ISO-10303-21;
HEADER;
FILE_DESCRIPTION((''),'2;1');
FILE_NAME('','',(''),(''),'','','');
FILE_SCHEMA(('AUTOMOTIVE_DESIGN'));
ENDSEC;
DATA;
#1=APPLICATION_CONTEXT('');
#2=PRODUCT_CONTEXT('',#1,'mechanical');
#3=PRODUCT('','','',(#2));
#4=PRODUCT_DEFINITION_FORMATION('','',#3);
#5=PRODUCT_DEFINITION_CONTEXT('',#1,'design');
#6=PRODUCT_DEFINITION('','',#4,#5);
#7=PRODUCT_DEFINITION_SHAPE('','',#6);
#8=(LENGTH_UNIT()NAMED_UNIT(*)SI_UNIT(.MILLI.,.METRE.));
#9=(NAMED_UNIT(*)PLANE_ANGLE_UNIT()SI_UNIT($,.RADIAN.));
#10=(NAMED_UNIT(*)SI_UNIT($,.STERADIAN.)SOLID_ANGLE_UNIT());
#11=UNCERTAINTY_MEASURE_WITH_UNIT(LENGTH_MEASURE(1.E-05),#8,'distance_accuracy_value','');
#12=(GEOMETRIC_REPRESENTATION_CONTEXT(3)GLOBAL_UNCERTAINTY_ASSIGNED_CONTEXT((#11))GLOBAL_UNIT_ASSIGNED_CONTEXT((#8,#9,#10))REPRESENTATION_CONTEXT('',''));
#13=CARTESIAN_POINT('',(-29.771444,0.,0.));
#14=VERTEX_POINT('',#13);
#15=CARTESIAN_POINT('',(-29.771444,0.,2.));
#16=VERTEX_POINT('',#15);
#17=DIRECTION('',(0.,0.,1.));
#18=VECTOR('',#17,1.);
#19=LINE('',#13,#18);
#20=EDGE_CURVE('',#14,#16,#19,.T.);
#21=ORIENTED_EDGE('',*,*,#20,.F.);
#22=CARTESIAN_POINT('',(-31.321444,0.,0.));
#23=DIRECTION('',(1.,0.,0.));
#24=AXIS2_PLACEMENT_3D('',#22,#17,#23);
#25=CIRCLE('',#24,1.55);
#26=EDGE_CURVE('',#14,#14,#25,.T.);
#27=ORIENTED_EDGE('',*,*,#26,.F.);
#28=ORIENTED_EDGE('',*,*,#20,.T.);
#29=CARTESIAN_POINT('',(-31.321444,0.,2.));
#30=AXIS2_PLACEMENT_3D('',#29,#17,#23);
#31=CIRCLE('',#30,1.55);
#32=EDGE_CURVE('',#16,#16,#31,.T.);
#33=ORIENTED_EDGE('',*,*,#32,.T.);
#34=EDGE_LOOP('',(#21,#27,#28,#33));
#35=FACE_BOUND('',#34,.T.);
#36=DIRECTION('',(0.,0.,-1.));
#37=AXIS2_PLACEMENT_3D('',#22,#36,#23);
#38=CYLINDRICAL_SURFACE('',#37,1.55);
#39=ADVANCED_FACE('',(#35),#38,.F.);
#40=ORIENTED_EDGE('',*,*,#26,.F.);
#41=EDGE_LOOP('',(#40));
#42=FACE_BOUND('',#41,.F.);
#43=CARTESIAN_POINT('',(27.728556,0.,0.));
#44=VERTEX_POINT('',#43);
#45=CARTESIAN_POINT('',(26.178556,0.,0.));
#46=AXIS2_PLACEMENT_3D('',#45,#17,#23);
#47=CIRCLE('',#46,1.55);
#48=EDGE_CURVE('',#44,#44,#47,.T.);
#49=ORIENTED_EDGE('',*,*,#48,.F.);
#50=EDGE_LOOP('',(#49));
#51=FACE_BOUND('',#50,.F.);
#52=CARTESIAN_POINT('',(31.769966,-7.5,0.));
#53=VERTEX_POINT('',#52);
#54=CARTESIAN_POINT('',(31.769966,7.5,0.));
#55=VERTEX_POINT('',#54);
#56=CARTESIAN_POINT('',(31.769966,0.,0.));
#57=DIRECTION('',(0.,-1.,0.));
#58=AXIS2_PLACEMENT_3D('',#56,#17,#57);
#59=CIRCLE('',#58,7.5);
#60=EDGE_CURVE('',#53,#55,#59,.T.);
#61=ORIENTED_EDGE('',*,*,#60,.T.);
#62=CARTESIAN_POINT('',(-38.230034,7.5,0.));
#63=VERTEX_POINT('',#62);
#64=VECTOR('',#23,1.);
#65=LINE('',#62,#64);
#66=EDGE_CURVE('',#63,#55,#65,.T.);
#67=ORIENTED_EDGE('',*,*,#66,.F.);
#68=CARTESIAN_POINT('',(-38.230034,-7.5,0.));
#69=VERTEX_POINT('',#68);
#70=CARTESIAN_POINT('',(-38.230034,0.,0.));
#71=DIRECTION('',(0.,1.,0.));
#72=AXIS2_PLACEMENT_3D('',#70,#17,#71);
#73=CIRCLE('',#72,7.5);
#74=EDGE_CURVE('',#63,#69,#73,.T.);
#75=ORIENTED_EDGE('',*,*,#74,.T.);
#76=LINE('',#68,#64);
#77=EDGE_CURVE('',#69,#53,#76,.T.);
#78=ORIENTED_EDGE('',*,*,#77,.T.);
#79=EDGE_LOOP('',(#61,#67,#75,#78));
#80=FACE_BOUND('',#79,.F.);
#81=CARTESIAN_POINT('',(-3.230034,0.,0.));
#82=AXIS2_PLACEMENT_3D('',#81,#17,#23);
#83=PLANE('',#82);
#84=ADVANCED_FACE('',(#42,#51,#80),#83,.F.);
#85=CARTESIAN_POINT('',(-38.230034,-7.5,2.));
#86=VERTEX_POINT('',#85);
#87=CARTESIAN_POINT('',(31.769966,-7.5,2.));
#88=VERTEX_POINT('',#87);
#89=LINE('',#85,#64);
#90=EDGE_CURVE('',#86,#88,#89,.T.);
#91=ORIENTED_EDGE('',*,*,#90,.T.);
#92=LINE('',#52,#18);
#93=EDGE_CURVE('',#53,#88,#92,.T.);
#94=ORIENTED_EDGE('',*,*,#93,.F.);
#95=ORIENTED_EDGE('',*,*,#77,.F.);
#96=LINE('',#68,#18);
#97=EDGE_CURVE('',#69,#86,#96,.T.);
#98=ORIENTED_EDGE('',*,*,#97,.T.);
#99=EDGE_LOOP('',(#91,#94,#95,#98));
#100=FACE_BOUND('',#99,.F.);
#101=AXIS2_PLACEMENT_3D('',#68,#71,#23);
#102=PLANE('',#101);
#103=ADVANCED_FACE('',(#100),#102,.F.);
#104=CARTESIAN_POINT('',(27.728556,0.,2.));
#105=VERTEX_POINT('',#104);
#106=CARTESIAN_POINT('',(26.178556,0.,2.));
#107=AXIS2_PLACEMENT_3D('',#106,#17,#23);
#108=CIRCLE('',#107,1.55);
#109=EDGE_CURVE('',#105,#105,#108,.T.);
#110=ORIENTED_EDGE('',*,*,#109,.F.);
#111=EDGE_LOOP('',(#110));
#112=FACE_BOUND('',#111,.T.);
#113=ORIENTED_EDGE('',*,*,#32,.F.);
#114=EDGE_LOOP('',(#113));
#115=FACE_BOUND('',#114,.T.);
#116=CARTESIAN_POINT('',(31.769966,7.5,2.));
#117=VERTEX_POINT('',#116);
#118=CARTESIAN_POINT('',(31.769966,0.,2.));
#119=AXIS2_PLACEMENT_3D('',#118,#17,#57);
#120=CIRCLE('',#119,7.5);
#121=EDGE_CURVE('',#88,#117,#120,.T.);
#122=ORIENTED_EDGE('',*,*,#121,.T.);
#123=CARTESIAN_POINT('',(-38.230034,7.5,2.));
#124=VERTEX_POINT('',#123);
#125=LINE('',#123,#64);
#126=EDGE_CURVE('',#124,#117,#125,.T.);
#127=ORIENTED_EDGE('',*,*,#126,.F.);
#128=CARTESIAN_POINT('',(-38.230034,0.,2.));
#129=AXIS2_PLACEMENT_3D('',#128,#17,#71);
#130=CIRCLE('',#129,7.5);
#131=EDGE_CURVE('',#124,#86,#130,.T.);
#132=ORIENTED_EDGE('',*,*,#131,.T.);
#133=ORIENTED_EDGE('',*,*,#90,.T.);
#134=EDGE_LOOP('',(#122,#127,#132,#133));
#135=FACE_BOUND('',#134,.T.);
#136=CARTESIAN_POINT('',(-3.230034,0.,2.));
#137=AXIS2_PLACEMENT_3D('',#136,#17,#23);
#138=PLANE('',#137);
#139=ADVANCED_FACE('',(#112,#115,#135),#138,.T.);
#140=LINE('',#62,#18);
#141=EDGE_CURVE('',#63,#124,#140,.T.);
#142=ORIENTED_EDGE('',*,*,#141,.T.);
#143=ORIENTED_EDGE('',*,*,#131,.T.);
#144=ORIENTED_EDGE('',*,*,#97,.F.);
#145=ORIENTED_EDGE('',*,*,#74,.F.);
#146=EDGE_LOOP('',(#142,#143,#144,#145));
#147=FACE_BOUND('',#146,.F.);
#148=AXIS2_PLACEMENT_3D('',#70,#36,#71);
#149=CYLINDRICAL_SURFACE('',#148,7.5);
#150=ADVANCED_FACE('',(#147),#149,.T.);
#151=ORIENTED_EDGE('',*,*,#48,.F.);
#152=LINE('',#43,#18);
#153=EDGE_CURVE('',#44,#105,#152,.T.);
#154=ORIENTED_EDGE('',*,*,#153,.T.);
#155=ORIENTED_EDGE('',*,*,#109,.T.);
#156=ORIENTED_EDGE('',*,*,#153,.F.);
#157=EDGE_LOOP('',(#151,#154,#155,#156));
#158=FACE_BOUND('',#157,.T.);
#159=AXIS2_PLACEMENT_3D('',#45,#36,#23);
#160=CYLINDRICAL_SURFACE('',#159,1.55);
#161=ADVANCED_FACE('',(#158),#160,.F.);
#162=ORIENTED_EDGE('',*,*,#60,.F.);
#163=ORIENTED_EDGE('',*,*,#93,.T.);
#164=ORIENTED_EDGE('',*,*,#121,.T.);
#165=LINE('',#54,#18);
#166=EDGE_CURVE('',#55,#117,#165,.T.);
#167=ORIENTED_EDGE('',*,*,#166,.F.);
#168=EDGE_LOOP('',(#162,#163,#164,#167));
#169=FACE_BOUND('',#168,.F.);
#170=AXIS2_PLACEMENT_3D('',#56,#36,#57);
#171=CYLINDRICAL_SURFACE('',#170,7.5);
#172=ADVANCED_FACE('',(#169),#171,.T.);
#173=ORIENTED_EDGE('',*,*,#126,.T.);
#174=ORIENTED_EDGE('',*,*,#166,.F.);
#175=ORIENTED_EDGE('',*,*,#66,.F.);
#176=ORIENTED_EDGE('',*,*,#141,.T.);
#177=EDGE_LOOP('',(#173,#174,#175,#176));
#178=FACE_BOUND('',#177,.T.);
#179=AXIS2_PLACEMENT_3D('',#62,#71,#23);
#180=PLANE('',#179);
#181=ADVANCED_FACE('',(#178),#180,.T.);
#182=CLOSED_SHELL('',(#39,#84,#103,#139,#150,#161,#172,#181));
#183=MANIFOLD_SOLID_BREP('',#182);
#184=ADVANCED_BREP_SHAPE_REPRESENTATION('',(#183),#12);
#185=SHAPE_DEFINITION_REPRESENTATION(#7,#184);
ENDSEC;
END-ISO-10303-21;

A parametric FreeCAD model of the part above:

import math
import FreeCAD as App
import Part
import Sketcher

V = App.Vector

doc = App.newDocument("Part")
params = doc.addObject("Spreadsheet::Sheet", "Params")
for row, (alias, value) in enumerate([
    ("sketch1_diameter", "3.1 mm"),
    ("sketch1_radius", "7.5 mm"),
    ("sketch1_width", "70 mm"),
    ("pad1_length", "2 mm"),
], start=1):
    params.set(f"A{row}", alias)
    params.set(f"B{row}", "=" + value)
    params.setAlias(f"B{row}", alias)

body = doc.addObject("PartDesign::Body", "Body")

sketch1 = doc.addObject("Sketcher::SketchObject", "Sketch")
body.addObject(sketch1)
sketch1.AttachmentSupport = (doc.XY_Plane, [""])
sketch1.MapMode = "FlatFace"
sketch1.addGeometry([
    Part.ArcOfCircle(Part.Circle(V(-38.230034, 0, 0), V(0, 0, 1), 7.5), math.radians(90), math.radians(270)),
    Part.LineSegment(V(-38.230034, -7.5, 0), V(31.769966, -7.5, 0)),
    Part.ArcOfCircle(Part.Circle(V(31.769966, 0, 0), V(0, 0, 1), 7.5), math.radians(-90), math.radians(90)),
    Part.LineSegment(V(31.769966, 7.5, 0), V(-38.230034, 7.5, 0)),
    Part.Circle(V(-31.321444, 0, 0), V(0, 0, 1), 1.55),
    Part.Circle(V(26.178556, 0, 0), V(0, 0, 1), 1.55),
], False)
sketch1.addConstraint([
    Sketcher.Constraint("Tangent", 0, 2, 1, 1),
    Sketcher.Constraint("Tangent", 1, 2, 2, 1),
    Sketcher.Constraint("Tangent", 2, 2, 3, 1),
    Sketcher.Constraint("Tangent", 3, 2, 0, 1),
    Sketcher.Constraint("Horizontal", 1),
    Sketcher.Constraint("Horizontal", 3),
    Sketcher.Constraint("Equal", 4, 5),
    Sketcher.Constraint("PointOnObject", 0, 3, -1),
    Sketcher.Constraint("PointOnObject", 4, 3, -1),
    Sketcher.Constraint("PointOnObject", 5, 3, -1),
    Sketcher.Constraint("Diameter", 4, 3.1),
    Sketcher.Constraint("Radius", 0, 7.5),
    Sketcher.Constraint("DistanceX", 1, 1, 1, 2, 70.0),
    Sketcher.Constraint("DistanceX", 4, 3, 5, 3, 57.5),
    Sketcher.Constraint("DistanceX", 0, 3, 4, 3, 6.90859),
    Sketcher.Constraint("DistanceX", 0, 3, -1, 1, 38.230034),
])
sketch1.setExpression("Constraints[10]", "Params.sketch1_diameter")
sketch1.setExpression("Constraints[11]", "Params.sketch1_radius")
sketch1.setExpression("Constraints[12]", "Params.sketch1_width")
pad1 = doc.addObject("PartDesign::Pad", "Pad")
body.addObject(pad1)
pad1.Profile = sketch1
pad1.setExpression("Length", "Params.pad1_length")

doc.recompute()
